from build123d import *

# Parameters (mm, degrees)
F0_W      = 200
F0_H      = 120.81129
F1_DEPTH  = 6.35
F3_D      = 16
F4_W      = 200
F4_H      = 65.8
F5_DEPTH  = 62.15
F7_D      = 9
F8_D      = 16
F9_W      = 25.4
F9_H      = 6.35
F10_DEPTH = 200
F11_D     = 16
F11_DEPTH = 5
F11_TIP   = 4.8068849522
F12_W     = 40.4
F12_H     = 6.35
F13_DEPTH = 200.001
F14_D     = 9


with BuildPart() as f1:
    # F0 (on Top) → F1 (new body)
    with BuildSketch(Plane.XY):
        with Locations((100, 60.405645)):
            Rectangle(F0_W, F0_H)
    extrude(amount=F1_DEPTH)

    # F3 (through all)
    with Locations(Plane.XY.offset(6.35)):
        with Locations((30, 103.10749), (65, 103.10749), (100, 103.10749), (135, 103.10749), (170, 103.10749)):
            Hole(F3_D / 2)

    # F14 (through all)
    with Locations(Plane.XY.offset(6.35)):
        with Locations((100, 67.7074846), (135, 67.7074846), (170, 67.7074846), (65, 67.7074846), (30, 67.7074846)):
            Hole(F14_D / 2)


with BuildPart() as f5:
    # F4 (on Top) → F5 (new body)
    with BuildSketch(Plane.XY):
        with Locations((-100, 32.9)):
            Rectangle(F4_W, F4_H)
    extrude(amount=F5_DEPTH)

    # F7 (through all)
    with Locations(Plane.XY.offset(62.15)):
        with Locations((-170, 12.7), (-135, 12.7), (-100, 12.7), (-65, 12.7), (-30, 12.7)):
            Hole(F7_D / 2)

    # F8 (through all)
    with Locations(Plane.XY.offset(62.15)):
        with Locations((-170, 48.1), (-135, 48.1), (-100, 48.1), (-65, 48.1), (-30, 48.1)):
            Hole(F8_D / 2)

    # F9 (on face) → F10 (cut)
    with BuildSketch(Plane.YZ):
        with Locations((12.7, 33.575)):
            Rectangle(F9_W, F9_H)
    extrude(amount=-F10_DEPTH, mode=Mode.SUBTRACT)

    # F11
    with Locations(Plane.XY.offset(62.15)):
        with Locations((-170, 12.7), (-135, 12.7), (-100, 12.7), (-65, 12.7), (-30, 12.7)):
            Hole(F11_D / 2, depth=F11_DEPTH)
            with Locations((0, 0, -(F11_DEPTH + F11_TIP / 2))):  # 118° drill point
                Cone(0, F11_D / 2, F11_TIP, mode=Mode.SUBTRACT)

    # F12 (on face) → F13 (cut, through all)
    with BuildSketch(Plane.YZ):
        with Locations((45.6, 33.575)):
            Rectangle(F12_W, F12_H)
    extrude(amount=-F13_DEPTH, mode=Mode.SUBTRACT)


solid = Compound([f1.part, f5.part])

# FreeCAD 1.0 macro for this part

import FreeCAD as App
import Part
import Sketcher
from FreeCAD import Vector


def add_polygon(sketch, points):
    """Adds a closed chain of lines whose ends are joined by coincident constraints."""
    first, n = sketch.GeometryCount, len(points)
    for a, b in zip(points, points[1:] + points[:1]):
        sketch.addGeometry(Part.LineSegment(App.Vector(*a, 0), App.Vector(*b, 0)), False)
    for i in range(n):
        sketch.addConstraint(Sketcher.Constraint("Coincident", first + i, 2, first + (i + 1) % n, 1))

doc = App.newDocument("Part")
body = doc.addObject("PartDesign::Body", "Body")

sketch1 = body.newObject("Sketcher::SketchObject", "Sketch")
sketch1.AttachmentSupport = (doc.getObject("XY_Plane"), [""])
sketch1.MapMode = "FlatFace"
add_polygon(sketch1, [(0, 120.81129), (0, 0), (200, 0), (200, 120.81129)])
sketch1.addConstraint([
    Sketcher.Constraint("Vertical", 0),
    Sketcher.Constraint("Horizontal", 1),
    Sketcher.Constraint("Vertical", 2),
    Sketcher.Constraint("Horizontal", 3),
    Sketcher.Constraint("Coincident", 0, 2, -1, 1),
    Sketcher.Constraint("DistanceX", 1, 1, 1, 2, 200.0),
    Sketcher.Constraint("DistanceY", 0, 2, 0, 1, 120.81129),
])
pad1 = body.newObject("PartDesign::Pad", "Pad")
pad1.Profile = sketch1
pad1.Length = 6.35

sketch2 = body.newObject("Sketcher::SketchObject", "Sketch001")
sketch2.AttachmentSupport = (doc.getObject("XY_Plane"), [""])
sketch2.MapMode = "FlatFace"
sketch2.AttachmentOffset = App.Placement(Vector(0, 0, 6.35), App.Rotation())
sketch2.addGeometry([
    Part.Circle(Vector(30, 103.10749, 0), Vector(0, 0, 1), 8),
    Part.Circle(Vector(65, 103.10749, 0), Vector(0, 0, 1), 8),
    Part.Circle(Vector(100, 103.10749, 0), Vector(0, 0, 1), 8),
    Part.Circle(Vector(135, 103.10749, 0), Vector(0, 0, 1), 8),
    Part.Circle(Vector(170, 103.10749, 0), Vector(0, 0, 1), 8),
], False)
sketch2.addConstraint([
    Sketcher.Constraint("Equal", 0, 1),
    Sketcher.Constraint("Equal", 1, 2),
    Sketcher.Constraint("Equal", 2, 3),
    Sketcher.Constraint("Equal", 3, 4),
    Sketcher.Constraint("Horizontal", 0, 3, 1, 3),
    Sketcher.Constraint("Horizontal", 1, 3, 2, 3),
    Sketcher.Constraint("Horizontal", 2, 3, 3, 3),
    Sketcher.Constraint("Horizontal", 3, 3, 4, 3),
    Sketcher.Constraint("Diameter", 0, 16.0),
    Sketcher.Constraint("DistanceX", -1, 1, 0, 3, 30.0),
    Sketcher.Constraint("DistanceX", -1, 1, 1, 3, 65.0),
    Sketcher.Constraint("DistanceX", -1, 1, 2, 3, 100.0),
    Sketcher.Constraint("DistanceX", -1, 1, 3, 3, 135.0),
    Sketcher.Constraint("DistanceX", -1, 1, 4, 3, 170.0),
    Sketcher.Constraint("DistanceY", -1, 1, 0, 3, 103.10749),
])
doc.recompute()
hole = body.newObject("PartDesign::Hole", "Hole")
hole.Profile = sketch2
hole.ThreadType = "None"
hole.Diameter = 16
hole.DepthType = "ThroughAll"

sketch3 = body.newObject("Sketcher::SketchObject", "Sketch002")
sketch3.AttachmentSupport = (doc.getObject("XY_Plane"), [""])
sketch3.MapMode = "FlatFace"
sketch3.AttachmentOffset = App.Placement(Vector(0, 0, 6.35), App.Rotation())
sketch3.addGeometry([
    Part.Circle(Vector(100, 67.707485, 0), Vector(0, 0, 1), 4.5),
    Part.Circle(Vector(135, 67.707485, 0), Vector(0, 0, 1), 4.5),
    Part.Circle(Vector(170, 67.707485, 0), Vector(0, 0, 1), 4.5),
    Part.Circle(Vector(65, 67.707485, 0), Vector(0, 0, 1), 4.5),
    Part.Circle(Vector(30, 67.707485, 0), Vector(0, 0, 1), 4.5),
], False)
sketch3.addConstraint([
    Sketcher.Constraint("Equal", 0, 1),
    Sketcher.Constraint("Equal", 1, 2),
    Sketcher.Constraint("Equal", 2, 3),
    Sketcher.Constraint("Equal", 3, 4),
    Sketcher.Constraint("Horizontal", 0, 3, 1, 3),
    Sketcher.Constraint("Horizontal", 1, 3, 2, 3),
    Sketcher.Constraint("Horizontal", 2, 3, 3, 3),
    Sketcher.Constraint("Horizontal", 3, 3, 4, 3),
    Sketcher.Constraint("Diameter", 0, 9.0),
    Sketcher.Constraint("DistanceX", -1, 1, 0, 3, 100.0),
    Sketcher.Constraint("DistanceX", -1, 1, 1, 3, 135.0),
    Sketcher.Constraint("DistanceX", -1, 1, 2, 3, 170.0),
    Sketcher.Constraint("DistanceX", -1, 1, 3, 3, 65.0),
    Sketcher.Constraint("DistanceX", -1, 1, 4, 3, 30.0),
    Sketcher.Constraint("DistanceY", -1, 1, 0, 3, 67.707485),
])
doc.recompute()
hole2 = body.newObject("PartDesign::Hole", "Hole001")
hole2.Profile = sketch3
hole2.ThreadType = "None"
hole2.Diameter = 9
hole2.DepthType = "ThroughAll"
body2 = doc.addObject("PartDesign::Body", "Body001")
body2.AllowCompound = True

sketch4 = body2.newObject("Sketcher::SketchObject", "Sketch003")
sketch4.AttachmentSupport = (doc.getObject("XY_Plane001"), [""])
sketch4.MapMode = "FlatFace"
add_polygon(sketch4, [(-200, 65.8), (-200, 0), (0, 0), (0, 65.8)])
sketch4.addConstraint([
    Sketcher.Constraint("Vertical", 0),
    Sketcher.Constraint("Horizontal", 1),
    Sketcher.Constraint("Vertical", 2),
    Sketcher.Constraint("Horizontal", 3),
    Sketcher.Constraint("Coincident", 1, 2, -1, 1),
    Sketcher.Constraint("DistanceX", 1, 1, 1, 2, 200.0),
    Sketcher.Constraint("DistanceY", 0, 2, 0, 1, 65.8),
])
pad2 = body2.newObject("PartDesign::Pad", "Pad001")
pad2.Profile = sketch4
pad2.Length = 62.15

sketch5 = body2.newObject("Sketcher::SketchObject", "Sketch004")
sketch5.AttachmentSupport = (doc.getObject("XY_Plane001"), [""])
sketch5.MapMode = "FlatFace"
sketch5.AttachmentOffset = App.Placement(Vector(0, 0, 62.15), App.Rotation())
sketch5.addGeometry([
    Part.Circle(Vector(-170, 12.7, 0), Vector(0, 0, 1), 4.5),
    Part.Circle(Vector(-135, 12.7, 0), Vector(0, 0, 1), 4.5),
    Part.Circle(Vector(-100, 12.7, 0), Vector(0, 0, 1), 4.5),
    Part.Circle(Vector(-65, 12.7, 0), Vector(0, 0, 1), 4.5),
    Part.Circle(Vector(-30, 12.7, 0), Vector(0, 0, 1), 4.5),
], False)
sketch5.addConstraint([
    Sketcher.Constraint("Equal", 0, 1),
    Sketcher.Constraint("Equal", 1, 2),
    Sketcher.Constraint("Equal", 2, 3),
    Sketcher.Constraint("Equal", 3, 4),
    Sketcher.Constraint("Horizontal", 0, 3, 1, 3),
    Sketcher.Constraint("Horizontal", 1, 3, 2, 3),
    Sketcher.Constraint("Horizontal", 2, 3, 3, 3),
    Sketcher.Constraint("Horizontal", 3, 3, 4, 3),
    Sketcher.Constraint("Diameter", 0, 9.0),
    Sketcher.Constraint("DistanceX", 0, 3, -1, 1, 170.0),
    Sketcher.Constraint("DistanceX", 1, 3, -1, 1, 135.0),
    Sketcher.Constraint("DistanceX", 2, 3, -1, 1, 100.0),
    Sketcher.Constraint("DistanceX", 3, 3, -1, 1, 65.0),
    Sketcher.Constraint("DistanceX", 4, 3, -1, 1, 30.0),
    Sketcher.Constraint("DistanceY", -1, 1, 0, 3, 12.7),
])
doc.recompute()
hole3 = body2.newObject("PartDesign::Hole", "Hole002")
hole3.Profile = sketch5
hole3.ThreadType = "None"
hole3.Diameter = 9
hole3.DepthType = "ThroughAll"

sketch6 = body2.newObject("Sketcher::SketchObject", "Sketch005")
sketch6.AttachmentSupport = (doc.getObject("XY_Plane001"), [""])
sketch6.MapMode = "FlatFace"
sketch6.AttachmentOffset = App.Placement(Vector(0, 0, 62.15), App.Rotation())
sketch6.addGeometry([
    Part.Circle(Vector(-170, 48.1, 0), Vector(0, 0, 1), 8),
    Part.Circle(Vector(-135, 48.1, 0), Vector(0, 0, 1), 8),
    Part.Circle(Vector(-100, 48.1, 0), Vector(0, 0, 1), 8),
    Part.Circle(Vector(-65, 48.1, 0), Vector(0, 0, 1), 8),
    Part.Circle(Vector(-30, 48.1, 0), Vector(0, 0, 1), 8),
], False)
sketch6.addConstraint([
    Sketcher.Constraint("Equal", 0, 1),
    Sketcher.Constraint("Equal", 1, 2),
    Sketcher.Constraint("Equal", 2, 3),
    Sketcher.Constraint("Equal", 3, 4),
    Sketcher.Constraint("Horizontal", 0, 3, 1, 3),
    Sketcher.Constraint("Horizontal", 1, 3, 2, 3),
    Sketcher.Constraint("Horizontal", 2, 3, 3, 3),
    Sketcher.Constraint("Horizontal", 3, 3, 4, 3),
    Sketcher.Constraint("Diameter", 0, 16.0),
    Sketcher.Constraint("DistanceX", 0, 3, -1, 1, 170.0),
    Sketcher.Constraint("DistanceX", 1, 3, -1, 1, 135.0),
    Sketcher.Constraint("DistanceX", 2, 3, -1, 1, 100.0),
    Sketcher.Constraint("DistanceX", 3, 3, -1, 1, 65.0),
    Sketcher.Constraint("DistanceX", 4, 3, -1, 1, 30.0),
    Sketcher.Constraint("DistanceY", -1, 1, 0, 3, 48.1),
])
doc.recompute()
hole4 = body2.newObject("PartDesign::Hole", "Hole003")
hole4.Profile = sketch6
hole4.ThreadType = "None"
hole4.Diameter = 16
hole4.DepthType = "ThroughAll"

sketch7 = body2.newObject("Sketcher::SketchObject", "Sketch006")
sketch7.AttachmentSupport = (doc.getObject("YZ_Plane001"), [""])
sketch7.MapMode = "FlatFace"
add_polygon(sketch7, [(0, 36.75), (0, 30.4), (25.4, 30.4), (25.4, 36.75)])
sketch7.addConstraint([
    Sketcher.Constraint("Vertical", 0),
    Sketcher.Constraint("Horizontal", 1),
    Sketcher.Constraint("Vertical", 2),
    Sketcher.Constraint("Horizontal", 3),
    Sketcher.Constraint("PointOnObject", 0, 2, -2),
    Sketcher.Constraint("DistanceX", 1, 1, 1, 2, 25.4),
    Sketcher.Constraint("DistanceY", 0, 2, 0, 1, 6.35),
    Sketcher.Constraint("DistanceY", -1, 1, 0, 2, 30.4),
])
pocket1 = body2.newObject("PartDesign::Pocket", "Pocket")
pocket1.Profile = sketch7
pocket1.Length = 200

sketch8 = body2.newObject("Sketcher::SketchObject", "Sketch007")
sketch8.AttachmentSupport = (doc.getObject("XY_Plane001"), [""])
sketch8.MapMode = "FlatFace"
sketch8.AttachmentOffset = App.Placement(Vector(0, 0, 62.15), App.Rotation())
sketch8.addGeometry([
    Part.Circle(Vector(-170, 12.7, 0), Vector(0, 0, 1), 8),
    Part.Circle(Vector(-135, 12.7, 0), Vector(0, 0, 1), 8),
    Part.Circle(Vector(-100, 12.7, 0), Vector(0, 0, 1), 8),
    Part.Circle(Vector(-65, 12.7, 0), Vector(0, 0, 1), 8),
    Part.Circle(Vector(-30, 12.7, 0), Vector(0, 0, 1), 8),
], False)
sketch8.addConstraint([
    Sketcher.Constraint("Equal", 0, 1),
    Sketcher.Constraint("Equal", 1, 2),
    Sketcher.Constraint("Equal", 2, 3),
    Sketcher.Constraint("Equal", 3, 4),
    Sketcher.Constraint("Horizontal", 0, 3, 1, 3),
    Sketcher.Constraint("Horizontal", 1, 3, 2, 3),
    Sketcher.Constraint("Horizontal", 2, 3, 3, 3),
    Sketcher.Constraint("Horizontal", 3, 3, 4, 3),
    Sketcher.Constraint("Diameter", 0, 16.0),
    Sketcher.Constraint("DistanceX", 0, 3, -1, 1, 170.0),
    Sketcher.Constraint("DistanceX", 1, 3, -1, 1, 135.0),
    Sketcher.Constraint("DistanceX", 2, 3, -1, 1, 100.0),
    Sketcher.Constraint("DistanceX", 3, 3, -1, 1, 65.0),
    Sketcher.Constraint("DistanceX", 4, 3, -1, 1, 30.0),
    Sketcher.Constraint("DistanceY", -1, 1, 0, 3, 12.7),
])
doc.recompute()
hole5 = body2.newObject("PartDesign::Hole", "Hole004")
hole5.Profile = sketch8
hole5.ThreadType = "None"
hole5.Diameter = 16
hole5.DepthType = "Dimension"
hole5.Depth = 5
hole5.DrillPoint = "Angled"
hole5.DrillPointAngle = 118

sketch9 = body2.newObject("Sketcher::SketchObject", "Sketch008")
sketch9.AttachmentSupport = (doc.getObject("YZ_Plane001"), [""])
sketch9.MapMode = "FlatFace"
add_polygon(sketch9, [(25.4, 36.75), (25.4, 30.4), (65.8, 30.4), (65.8, 36.75)])
sketch9.addConstraint([
    Sketcher.Constraint("Vertical", 0),
    Sketcher.Constraint("Horizontal", 1),
    Sketcher.Constraint("Vertical", 2),
    Sketcher.Constraint("Horizontal", 3),
    Sketcher.Constraint("DistanceX", 1, 1, 1, 2, 40.4),
    Sketcher.Constraint("DistanceY", 0, 2, 0, 1, 6.35),
    Sketcher.Constraint("DistanceX", -1, 1, 0, 2, 25.4),
    Sketcher.Constraint("DistanceY", -1, 1, 0, 2, 30.4),
])
pocket2 = body2.newObject("PartDesign::Pocket", "Pocket001")
pocket2.Profile = sketch9
pocket2.Type = "ThroughAll"

doc.recompute()
